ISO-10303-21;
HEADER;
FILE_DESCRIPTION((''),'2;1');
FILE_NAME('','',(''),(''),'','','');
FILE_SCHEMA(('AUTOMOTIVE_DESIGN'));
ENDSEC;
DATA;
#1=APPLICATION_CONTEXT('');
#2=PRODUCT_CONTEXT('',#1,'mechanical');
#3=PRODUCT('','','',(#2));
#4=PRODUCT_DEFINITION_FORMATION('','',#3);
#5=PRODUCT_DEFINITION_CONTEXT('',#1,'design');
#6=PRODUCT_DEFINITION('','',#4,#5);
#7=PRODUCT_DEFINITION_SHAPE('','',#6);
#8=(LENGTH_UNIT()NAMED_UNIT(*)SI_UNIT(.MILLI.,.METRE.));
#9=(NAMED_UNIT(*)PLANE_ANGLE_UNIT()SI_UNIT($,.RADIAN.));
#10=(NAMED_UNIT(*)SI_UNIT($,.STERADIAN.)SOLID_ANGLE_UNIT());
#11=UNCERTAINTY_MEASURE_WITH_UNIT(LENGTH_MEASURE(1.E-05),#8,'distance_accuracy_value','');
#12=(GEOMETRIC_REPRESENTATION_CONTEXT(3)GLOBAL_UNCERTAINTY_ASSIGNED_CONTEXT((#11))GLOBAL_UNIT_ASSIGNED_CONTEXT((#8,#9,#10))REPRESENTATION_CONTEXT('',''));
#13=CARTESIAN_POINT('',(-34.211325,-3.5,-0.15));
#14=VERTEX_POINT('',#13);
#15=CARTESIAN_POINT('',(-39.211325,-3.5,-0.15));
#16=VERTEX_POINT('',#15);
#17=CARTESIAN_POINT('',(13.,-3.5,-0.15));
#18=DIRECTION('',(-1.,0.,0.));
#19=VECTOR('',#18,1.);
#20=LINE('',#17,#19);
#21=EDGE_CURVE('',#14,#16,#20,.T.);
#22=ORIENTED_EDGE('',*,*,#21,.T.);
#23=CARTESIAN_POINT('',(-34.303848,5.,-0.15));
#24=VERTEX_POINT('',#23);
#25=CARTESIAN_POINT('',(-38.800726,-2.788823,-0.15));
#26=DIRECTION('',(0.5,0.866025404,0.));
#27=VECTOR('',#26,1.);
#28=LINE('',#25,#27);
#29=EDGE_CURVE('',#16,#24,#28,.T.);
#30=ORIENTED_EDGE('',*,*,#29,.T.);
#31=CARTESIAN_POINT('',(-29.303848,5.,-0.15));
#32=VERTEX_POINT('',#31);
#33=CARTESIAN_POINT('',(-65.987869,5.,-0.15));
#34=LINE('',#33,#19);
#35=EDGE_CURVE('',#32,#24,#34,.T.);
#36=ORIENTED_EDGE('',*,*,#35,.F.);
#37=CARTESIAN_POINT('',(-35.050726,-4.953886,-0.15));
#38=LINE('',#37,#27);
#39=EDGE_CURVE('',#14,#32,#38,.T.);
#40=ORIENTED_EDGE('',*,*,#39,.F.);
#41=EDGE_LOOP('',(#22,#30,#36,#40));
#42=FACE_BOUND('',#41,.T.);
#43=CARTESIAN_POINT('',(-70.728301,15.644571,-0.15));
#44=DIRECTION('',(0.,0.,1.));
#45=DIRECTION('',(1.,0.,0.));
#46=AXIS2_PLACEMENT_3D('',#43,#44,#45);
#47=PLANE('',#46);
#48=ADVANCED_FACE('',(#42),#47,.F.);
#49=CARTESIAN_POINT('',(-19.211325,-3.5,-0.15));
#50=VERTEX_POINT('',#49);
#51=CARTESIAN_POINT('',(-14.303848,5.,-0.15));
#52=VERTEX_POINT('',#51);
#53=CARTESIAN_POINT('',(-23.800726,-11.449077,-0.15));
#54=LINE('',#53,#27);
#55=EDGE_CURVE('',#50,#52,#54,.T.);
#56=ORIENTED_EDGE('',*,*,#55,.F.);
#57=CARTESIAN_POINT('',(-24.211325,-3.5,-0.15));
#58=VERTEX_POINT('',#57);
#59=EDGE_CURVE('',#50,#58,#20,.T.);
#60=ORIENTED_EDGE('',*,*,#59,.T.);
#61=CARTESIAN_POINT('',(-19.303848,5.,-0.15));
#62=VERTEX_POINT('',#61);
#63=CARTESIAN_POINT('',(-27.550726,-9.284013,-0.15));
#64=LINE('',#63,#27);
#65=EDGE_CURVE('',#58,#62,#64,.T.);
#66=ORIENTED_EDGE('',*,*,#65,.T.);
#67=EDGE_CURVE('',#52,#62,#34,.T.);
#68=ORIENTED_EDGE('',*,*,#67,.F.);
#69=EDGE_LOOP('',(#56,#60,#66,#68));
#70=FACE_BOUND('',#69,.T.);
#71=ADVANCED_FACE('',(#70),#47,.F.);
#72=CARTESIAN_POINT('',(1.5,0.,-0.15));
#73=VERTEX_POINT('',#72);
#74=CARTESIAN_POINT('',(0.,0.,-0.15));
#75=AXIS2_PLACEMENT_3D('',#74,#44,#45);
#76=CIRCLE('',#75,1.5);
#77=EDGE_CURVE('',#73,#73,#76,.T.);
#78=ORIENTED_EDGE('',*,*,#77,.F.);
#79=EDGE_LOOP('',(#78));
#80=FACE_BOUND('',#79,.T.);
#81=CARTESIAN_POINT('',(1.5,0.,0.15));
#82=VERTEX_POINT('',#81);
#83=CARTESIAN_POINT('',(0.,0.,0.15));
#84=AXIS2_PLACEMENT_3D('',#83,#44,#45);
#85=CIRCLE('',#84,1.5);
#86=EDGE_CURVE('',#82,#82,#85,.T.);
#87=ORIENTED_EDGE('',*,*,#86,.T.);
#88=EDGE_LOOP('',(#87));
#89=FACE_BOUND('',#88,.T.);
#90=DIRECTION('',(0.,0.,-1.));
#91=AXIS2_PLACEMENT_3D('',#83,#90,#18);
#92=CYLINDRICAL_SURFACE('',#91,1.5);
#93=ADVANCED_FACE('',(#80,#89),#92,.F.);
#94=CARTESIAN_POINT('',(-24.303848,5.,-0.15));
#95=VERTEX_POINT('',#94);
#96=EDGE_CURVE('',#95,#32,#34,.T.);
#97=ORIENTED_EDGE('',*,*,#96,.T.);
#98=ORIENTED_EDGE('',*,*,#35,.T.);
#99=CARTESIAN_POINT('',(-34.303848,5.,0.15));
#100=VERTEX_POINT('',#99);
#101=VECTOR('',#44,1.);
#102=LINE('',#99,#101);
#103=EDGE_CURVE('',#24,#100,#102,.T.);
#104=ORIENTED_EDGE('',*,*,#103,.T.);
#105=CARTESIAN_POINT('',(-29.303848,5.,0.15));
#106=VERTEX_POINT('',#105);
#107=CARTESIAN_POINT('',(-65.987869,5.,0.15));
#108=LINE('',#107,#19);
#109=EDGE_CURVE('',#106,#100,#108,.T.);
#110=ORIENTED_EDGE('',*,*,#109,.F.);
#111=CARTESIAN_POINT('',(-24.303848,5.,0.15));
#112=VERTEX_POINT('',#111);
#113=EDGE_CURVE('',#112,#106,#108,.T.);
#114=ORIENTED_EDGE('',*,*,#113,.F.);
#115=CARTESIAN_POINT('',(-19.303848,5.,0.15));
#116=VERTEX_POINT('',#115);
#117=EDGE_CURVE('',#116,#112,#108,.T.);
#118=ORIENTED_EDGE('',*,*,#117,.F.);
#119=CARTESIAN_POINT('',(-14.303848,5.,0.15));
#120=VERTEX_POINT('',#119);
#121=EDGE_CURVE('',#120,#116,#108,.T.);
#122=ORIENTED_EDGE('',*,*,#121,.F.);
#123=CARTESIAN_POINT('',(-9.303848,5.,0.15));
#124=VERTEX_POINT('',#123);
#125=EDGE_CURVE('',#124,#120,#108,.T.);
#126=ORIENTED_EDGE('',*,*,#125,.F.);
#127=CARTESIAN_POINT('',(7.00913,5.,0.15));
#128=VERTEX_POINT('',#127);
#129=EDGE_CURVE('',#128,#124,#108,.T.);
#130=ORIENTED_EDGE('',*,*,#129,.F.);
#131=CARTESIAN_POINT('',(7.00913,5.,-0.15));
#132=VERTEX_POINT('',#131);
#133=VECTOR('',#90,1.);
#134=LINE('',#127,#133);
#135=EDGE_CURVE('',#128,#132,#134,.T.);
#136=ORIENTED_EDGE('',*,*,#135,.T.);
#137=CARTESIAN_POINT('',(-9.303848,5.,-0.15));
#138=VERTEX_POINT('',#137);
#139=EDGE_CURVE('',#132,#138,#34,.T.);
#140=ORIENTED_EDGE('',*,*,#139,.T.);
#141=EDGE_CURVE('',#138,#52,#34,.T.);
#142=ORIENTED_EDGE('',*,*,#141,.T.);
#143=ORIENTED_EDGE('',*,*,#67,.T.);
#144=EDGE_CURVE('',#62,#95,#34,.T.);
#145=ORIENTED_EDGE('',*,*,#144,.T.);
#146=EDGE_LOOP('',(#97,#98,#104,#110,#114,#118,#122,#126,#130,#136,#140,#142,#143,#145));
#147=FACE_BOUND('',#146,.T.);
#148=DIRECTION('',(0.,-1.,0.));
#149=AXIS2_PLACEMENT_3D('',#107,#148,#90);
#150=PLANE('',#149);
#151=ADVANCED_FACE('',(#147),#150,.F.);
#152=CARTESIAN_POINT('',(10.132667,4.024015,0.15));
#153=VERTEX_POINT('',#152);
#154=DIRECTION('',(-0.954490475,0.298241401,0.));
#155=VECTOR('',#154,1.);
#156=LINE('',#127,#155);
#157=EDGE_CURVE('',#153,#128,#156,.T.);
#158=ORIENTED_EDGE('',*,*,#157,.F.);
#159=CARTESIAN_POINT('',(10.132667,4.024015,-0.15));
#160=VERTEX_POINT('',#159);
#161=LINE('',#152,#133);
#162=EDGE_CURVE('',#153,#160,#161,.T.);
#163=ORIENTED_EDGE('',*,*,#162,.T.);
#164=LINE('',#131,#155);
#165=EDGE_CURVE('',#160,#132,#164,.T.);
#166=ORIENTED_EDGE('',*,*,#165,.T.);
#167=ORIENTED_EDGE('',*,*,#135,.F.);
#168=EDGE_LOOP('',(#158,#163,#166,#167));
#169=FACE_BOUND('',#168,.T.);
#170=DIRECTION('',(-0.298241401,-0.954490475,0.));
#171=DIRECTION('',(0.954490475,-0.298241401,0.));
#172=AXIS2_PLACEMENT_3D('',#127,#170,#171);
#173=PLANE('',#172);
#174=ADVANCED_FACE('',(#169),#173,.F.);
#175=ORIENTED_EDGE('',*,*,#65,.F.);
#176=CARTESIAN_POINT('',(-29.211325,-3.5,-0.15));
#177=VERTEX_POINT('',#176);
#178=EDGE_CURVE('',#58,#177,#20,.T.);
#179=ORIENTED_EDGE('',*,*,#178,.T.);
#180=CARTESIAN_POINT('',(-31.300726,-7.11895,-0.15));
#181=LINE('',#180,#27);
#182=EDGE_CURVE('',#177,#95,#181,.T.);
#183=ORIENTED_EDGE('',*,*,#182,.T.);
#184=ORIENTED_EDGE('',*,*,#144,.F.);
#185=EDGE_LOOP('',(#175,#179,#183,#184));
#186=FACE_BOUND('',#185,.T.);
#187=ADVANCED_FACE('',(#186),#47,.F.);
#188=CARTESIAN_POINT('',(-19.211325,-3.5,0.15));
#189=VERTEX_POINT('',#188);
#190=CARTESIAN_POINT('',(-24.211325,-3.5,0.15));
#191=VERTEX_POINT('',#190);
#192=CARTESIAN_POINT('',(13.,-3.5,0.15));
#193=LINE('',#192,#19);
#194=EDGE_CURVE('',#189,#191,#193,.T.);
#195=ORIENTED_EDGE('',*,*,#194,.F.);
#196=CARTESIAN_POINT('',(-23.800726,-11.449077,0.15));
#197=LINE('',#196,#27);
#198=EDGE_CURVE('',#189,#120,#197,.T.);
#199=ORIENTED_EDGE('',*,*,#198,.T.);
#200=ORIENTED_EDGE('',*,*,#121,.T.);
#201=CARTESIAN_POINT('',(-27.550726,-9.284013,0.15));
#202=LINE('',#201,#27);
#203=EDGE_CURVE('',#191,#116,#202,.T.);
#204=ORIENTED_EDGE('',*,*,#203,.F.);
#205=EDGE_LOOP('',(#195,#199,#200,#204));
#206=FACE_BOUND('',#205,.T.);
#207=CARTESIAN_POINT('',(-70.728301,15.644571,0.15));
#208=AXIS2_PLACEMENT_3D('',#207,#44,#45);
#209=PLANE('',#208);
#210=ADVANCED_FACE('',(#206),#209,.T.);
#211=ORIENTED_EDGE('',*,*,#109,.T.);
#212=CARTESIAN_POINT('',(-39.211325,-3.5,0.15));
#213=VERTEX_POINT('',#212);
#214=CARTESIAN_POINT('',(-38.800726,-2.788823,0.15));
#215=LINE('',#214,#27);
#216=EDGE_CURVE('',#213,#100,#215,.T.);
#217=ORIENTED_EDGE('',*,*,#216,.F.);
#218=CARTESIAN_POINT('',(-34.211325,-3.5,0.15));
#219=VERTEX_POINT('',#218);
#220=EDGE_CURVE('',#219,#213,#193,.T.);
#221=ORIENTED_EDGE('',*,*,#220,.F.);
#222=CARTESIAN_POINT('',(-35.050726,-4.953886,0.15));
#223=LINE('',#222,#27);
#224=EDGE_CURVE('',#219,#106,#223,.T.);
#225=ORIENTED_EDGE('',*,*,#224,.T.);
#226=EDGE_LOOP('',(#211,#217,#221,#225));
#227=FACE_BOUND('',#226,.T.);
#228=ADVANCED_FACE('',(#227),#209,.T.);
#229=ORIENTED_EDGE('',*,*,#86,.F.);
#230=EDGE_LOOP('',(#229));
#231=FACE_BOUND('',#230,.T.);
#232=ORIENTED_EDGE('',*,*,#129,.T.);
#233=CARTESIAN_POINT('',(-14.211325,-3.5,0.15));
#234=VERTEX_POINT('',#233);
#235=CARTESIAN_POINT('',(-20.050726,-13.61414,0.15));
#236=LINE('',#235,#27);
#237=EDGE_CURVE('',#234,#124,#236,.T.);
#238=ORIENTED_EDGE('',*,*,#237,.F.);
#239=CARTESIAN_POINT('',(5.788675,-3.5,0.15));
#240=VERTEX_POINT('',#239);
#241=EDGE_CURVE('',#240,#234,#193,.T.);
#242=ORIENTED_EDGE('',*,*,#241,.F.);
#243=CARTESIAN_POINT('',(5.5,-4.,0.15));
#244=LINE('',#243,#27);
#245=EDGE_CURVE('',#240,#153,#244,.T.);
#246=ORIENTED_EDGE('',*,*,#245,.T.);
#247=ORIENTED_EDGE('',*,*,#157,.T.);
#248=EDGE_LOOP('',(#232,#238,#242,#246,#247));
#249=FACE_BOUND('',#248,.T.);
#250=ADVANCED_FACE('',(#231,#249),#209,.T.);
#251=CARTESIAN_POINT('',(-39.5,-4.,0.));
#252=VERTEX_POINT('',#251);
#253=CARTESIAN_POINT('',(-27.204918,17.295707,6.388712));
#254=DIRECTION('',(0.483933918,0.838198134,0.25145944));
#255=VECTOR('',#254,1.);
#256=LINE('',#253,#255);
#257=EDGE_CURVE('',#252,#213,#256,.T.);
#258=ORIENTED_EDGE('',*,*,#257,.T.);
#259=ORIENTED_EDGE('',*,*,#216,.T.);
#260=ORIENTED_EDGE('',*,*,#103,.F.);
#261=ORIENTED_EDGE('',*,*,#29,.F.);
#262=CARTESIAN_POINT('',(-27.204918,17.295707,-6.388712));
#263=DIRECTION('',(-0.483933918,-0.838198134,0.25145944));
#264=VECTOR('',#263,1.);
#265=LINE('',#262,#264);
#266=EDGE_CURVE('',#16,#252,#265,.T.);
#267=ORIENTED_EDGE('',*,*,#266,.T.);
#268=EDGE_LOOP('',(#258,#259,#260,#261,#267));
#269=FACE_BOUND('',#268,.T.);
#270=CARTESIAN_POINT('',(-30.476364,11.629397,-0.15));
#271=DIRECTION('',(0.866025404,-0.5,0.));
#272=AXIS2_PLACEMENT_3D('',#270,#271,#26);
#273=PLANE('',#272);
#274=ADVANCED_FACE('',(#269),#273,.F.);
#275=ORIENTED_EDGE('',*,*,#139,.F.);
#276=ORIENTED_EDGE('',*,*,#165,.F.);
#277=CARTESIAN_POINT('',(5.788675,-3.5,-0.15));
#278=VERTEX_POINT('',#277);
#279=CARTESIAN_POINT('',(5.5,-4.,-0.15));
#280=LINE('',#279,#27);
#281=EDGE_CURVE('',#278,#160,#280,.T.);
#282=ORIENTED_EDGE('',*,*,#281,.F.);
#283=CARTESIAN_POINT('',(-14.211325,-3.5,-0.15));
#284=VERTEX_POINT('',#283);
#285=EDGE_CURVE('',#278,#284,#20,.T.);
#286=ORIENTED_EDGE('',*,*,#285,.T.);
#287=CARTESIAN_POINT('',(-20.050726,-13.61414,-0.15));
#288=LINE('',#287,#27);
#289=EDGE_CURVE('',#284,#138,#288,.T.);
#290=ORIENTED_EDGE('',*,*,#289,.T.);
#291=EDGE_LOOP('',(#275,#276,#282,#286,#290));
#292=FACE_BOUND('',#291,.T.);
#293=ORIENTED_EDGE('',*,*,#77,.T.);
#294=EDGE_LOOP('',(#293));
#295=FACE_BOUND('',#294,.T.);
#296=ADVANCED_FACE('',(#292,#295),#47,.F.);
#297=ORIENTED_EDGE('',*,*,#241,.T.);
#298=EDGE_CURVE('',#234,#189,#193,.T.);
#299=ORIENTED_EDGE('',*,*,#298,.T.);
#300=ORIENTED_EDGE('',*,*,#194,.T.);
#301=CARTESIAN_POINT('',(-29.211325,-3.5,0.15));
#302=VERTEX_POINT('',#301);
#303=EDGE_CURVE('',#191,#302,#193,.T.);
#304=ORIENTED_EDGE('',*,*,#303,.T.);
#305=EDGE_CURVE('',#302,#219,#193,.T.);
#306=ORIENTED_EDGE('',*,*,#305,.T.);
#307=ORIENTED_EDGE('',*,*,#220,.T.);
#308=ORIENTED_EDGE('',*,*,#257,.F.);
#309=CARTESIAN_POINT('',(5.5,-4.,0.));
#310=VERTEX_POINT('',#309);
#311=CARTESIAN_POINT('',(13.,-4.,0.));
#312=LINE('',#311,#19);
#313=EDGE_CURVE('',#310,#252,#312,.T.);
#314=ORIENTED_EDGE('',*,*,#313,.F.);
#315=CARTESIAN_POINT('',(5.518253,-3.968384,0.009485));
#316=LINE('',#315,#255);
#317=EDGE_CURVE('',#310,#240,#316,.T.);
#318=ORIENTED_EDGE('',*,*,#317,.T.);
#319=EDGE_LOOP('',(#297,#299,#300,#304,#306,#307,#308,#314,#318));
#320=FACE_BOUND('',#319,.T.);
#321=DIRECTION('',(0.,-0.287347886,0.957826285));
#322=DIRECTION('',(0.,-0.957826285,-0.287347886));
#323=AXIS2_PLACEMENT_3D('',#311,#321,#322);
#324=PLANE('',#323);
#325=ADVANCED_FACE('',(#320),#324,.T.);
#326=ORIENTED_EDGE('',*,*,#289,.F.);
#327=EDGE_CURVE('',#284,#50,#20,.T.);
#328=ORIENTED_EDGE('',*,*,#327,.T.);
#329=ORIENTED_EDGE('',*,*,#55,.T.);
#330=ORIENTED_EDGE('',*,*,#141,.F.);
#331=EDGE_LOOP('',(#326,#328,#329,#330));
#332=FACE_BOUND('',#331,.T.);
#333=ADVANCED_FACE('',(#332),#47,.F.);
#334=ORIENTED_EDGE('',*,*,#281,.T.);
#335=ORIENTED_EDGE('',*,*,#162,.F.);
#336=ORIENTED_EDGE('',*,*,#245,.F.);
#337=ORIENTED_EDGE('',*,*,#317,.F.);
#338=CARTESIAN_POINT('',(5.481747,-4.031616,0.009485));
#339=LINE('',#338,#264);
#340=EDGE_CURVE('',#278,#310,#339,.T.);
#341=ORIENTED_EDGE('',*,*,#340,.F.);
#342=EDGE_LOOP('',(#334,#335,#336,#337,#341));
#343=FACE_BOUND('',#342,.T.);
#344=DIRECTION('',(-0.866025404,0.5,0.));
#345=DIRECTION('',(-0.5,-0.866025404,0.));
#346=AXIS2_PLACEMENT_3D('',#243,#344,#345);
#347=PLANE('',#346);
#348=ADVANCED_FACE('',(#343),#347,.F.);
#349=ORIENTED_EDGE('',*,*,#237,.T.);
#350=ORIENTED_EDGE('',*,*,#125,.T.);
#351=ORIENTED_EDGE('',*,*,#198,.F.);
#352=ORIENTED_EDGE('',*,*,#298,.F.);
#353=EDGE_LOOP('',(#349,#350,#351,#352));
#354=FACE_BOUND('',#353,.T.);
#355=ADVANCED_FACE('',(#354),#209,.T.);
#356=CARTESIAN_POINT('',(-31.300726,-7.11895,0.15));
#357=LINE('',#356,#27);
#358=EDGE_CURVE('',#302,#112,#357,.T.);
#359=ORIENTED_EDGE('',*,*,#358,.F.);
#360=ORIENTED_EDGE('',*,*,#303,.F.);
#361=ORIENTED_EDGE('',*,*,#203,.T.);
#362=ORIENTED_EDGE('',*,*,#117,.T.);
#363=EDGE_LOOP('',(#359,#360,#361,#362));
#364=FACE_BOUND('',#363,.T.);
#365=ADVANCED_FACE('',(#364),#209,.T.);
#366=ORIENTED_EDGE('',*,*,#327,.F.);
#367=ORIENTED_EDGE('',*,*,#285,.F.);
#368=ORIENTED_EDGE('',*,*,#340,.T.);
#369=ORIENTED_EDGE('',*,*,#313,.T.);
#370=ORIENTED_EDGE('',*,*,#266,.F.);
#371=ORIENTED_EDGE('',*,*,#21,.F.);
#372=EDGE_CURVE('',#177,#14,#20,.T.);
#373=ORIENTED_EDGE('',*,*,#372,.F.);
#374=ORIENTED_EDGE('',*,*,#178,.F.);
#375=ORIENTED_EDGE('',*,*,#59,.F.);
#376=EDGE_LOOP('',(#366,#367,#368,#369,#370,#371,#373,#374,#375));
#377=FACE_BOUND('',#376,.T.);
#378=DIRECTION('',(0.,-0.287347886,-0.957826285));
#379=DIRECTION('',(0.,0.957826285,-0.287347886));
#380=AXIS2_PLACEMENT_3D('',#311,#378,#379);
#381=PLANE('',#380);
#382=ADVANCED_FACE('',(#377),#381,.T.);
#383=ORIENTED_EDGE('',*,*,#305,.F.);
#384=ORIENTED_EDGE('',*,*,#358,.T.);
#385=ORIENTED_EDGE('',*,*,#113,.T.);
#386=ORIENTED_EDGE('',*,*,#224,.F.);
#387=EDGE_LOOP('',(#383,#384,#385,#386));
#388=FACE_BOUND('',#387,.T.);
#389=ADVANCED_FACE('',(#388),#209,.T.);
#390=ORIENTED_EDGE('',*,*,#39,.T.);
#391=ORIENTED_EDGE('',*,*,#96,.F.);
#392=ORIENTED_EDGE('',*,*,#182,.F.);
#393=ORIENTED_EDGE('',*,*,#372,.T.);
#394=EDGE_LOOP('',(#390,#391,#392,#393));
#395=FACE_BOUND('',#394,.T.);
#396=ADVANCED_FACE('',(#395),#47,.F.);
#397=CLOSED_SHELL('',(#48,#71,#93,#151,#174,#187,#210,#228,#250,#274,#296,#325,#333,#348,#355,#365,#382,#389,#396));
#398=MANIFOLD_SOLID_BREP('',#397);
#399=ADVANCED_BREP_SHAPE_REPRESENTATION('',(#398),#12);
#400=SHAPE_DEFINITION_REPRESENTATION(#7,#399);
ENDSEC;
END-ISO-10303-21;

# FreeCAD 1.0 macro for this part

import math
import FreeCAD as App
import Part
import Sketcher
Q = App.Units.Quantity

doc = App.newDocument("Part")
body = doc.addObject("PartDesign::Body", "Body")

# Sketch on XY plane
sketch1 = body.newObject("Sketcher::SketchObject", "Sketch")
sketch1.AttachmentSupport = (doc.getObject("XY_Plane"), [""])
sketch1.MapMode = "FlatFace"
sketch1.addGeometry([
    Part.LineSegment(App.Vector(-74.5, -4, 0), App.Vector(5.5, -4, 0)),  # 0
    Part.LineSegment(App.Vector(5.5, -4, 0), App.Vector(10.1, 4, 0)),  # 1
    Part.LineSegment(App.Vector(10.1, 4, 0), App.Vector(7, 5, 0)),  # 2
    Part.LineSegment(App.Vector(7, 5, 0), App.Vector(-66, 5, 0)),  # 3
    Part.ArcOfCircle(Part.Circle(App.Vector(-70.7, 15.6, 0), App.Vector(0, 0, 1), 11.7), math.radians(-85.76), math.radians(-65.99)),  # 4
    Part.LineSegment(App.Vector(-69.9, 4, 0), App.Vector(-74.5, -4, 0)),  # 5
    Part.Circle(App.Vector(0, 0, 0), App.Vector(0, 0, 1), 1.5),  # 6
], False)
sketch1.addConstraint([
    Sketcher.Constraint("Coincident", 0, 2, 1, 1),
    Sketcher.Constraint("Coincident", 1, 2, 2, 1),
    Sketcher.Constraint("Coincident", 2, 2, 3, 1),
    Sketcher.Constraint("Coincident", 3, 2, 4, 2),
    Sketcher.Constraint("Coincident", 4, 1, 5, 1),
    Sketcher.Constraint("Coincident", 5, 2, 0, 1),
    Sketcher.Constraint("Horizontal", 0),
    Sketcher.Constraint("Horizontal", 3),
    Sketcher.Constraint("Coincident", 6, 3, -1, 1),
    Sketcher.Constraint("Parallel", 1, 5),
    Sketcher.Constraint("Horizontal", 1, 2, 4, 1),
    Sketcher.Constraint("Diameter", 6, Q("3 mm")),
    Sketcher.Constraint("DistanceX", 0, 1, 0, 2, Q("80 mm")),
    Sketcher.Constraint("Angle", 1, Q("60 deg")),
    Sketcher.Constraint("DistanceY", 0, 2, -1, 1, Q("4 mm")),
    Sketcher.Constraint("DistanceY", -1, 1, 2, 2, Q("5 mm")),
    Sketcher.Constraint("DistanceX", -1, 1, 0, 2, Q("5.5 mm")),
    Sketcher.Constraint("DistanceX", 3, 2, 3, 1, Q("72.996999 mm")),
    Sketcher.Constraint("Radius", 4, Q("11.652407 mm")),
    Sketcher.Constraint("DistanceX", 4, 3, -1, 1, Q("70.728301 mm")),
    Sketcher.Constraint("DistanceY", -1, 1, 4, 3, Q("15.644571 mm")),
])
pad1 = body.newObject("PartDesign::Pad", "Pad")
pad1.Profile = sketch1
pad1.Length = 0.3
pad1.Midplane = True

# Sketch on YZ plane
sketch2 = body.newObject("Sketcher::SketchObject", "Sketch001")
sketch2.AttachmentSupport = (doc.getObject("YZ_Plane"), [""])
sketch2.MapMode = "FlatFace"
sketch2.addGeometry([
    Part.LineSegment(App.Vector(-4, 0, 0), App.Vector(-3.5, 0.1, 0)),  # 0
    Part.LineSegment(App.Vector(-3.5, 0.1, 0), App.Vector(-4.3, 0.7, 0)),  # 1
    Part.LineSegment(App.Vector(-4.3, 0.7, 0), App.Vector(-4.3, -0.6, 0)),  # 2
    Part.LineSegment(App.Vector(-4.3, -0.6, 0), App.Vector(-3.5, -0.1, 0)),  # 3
    Part.LineSegment(App.Vector(-3.5, -0.1, 0), App.Vector(-4, 0, 0)),  # 4
], False)
sketch2.addConstraint([
    Sketcher.Constraint("Coincident", 0, 2, 1, 1),
    Sketcher.Constraint("Coincident", 1, 2, 2, 1),
    Sketcher.Constraint("Coincident", 2, 2, 3, 1),
    Sketcher.Constraint("Coincident", 3, 2, 4, 1),
    Sketcher.Constraint("Coincident", 4, 2, 0, 1),
    Sketcher.Constraint("Vertical", 2),
    Sketcher.Constraint("Symmetric", 0, 2, 3, 2, -1),
    Sketcher.Constraint("PointOnObject", 4, 2, -1),
    Sketcher.Constraint("DistanceX", 4, 2, -1, 1, Q("4 mm")),
    Sketcher.Constraint("DistanceX", 0, 2, -1, 1, Q("3.5 mm")),
    Sketcher.Constraint("DistanceY", 3, 2, 0, 2, Q("0.3 mm")),
    Sketcher.Constraint("DistanceY", 2, 2, 2, 1, Q("1.349938 mm")),
    Sketcher.Constraint("Distance", 3, Q("0.94581 mm")),
    Sketcher.Constraint("DistanceX", 1, 2, -1, 1, Q("4.330451 mm")),
])
pocket1 = body.newObject("PartDesign::Pocket", "Pocket")
pocket1.Profile = sketch2
pocket1.Type = "ThroughAll"
pocket1.Midplane = True

# Sketch on XY plane
sketch3 = body.newObject("Sketcher::SketchObject", "Sketch002")
sketch3.AttachmentSupport = (doc.getObject("XY_Plane"), [""])
sketch3.MapMode = "FlatFace"
sketch3.AttachmentOffset = App.Placement(App.Vector(0, 0, 0.15), App.Rotation())
sketch3.addGeometry([
    Part.LineSegment(App.Vector(-40, -4, 0), App.Vector(-30, 12, 0)),
    Part.LineSegment(App.Vector(-30, 12, 0), App.Vector(-63, 16, 0)),
    Part.LineSegment(App.Vector(-63, 16, 0), App.Vector(-74, -4, 0)),
    Part.LineSegment(App.Vector(-74, -4, 0), App.Vector(-40, -4, 0)),
], False)
sketch3.addConstraint([
    Sketcher.Constraint("Coincident", 0, 2, 1, 1),
    Sketcher.Constraint("Coincident", 1, 2, 2, 1),
    Sketcher.Constraint("Coincident", 2, 2, 3, 1),
    Sketcher.Constraint("Coincident", 3, 2, 0, 1),
    Sketcher.Constraint("Horizontal", 3),
    Sketcher.Constraint("Parallel", 0, 2),
    Sketcher.Constraint("DistanceX", 3, 1, 3, 2, Q("35 mm")),
    Sketcher.Constraint("Angle", 0, Q("60 deg")),
    Sketcher.Constraint("DistanceY", 2, 2, -1, 1, Q("4 mm")),
    Sketcher.Constraint("DistanceX", 2, 2, -1, 1, Q("74.5 mm")),
    Sketcher.Constraint("Distance", 1, Q("32.770049 mm")),
    Sketcher.Constraint("Distance", 2, Q("23.092309 mm")),
])
pocket2 = body.newObject("PartDesign::Pocket", "Pocket001")
pocket2.Profile = sketch3
pocket2.Type = "ThroughAll"

doc.recompute()
